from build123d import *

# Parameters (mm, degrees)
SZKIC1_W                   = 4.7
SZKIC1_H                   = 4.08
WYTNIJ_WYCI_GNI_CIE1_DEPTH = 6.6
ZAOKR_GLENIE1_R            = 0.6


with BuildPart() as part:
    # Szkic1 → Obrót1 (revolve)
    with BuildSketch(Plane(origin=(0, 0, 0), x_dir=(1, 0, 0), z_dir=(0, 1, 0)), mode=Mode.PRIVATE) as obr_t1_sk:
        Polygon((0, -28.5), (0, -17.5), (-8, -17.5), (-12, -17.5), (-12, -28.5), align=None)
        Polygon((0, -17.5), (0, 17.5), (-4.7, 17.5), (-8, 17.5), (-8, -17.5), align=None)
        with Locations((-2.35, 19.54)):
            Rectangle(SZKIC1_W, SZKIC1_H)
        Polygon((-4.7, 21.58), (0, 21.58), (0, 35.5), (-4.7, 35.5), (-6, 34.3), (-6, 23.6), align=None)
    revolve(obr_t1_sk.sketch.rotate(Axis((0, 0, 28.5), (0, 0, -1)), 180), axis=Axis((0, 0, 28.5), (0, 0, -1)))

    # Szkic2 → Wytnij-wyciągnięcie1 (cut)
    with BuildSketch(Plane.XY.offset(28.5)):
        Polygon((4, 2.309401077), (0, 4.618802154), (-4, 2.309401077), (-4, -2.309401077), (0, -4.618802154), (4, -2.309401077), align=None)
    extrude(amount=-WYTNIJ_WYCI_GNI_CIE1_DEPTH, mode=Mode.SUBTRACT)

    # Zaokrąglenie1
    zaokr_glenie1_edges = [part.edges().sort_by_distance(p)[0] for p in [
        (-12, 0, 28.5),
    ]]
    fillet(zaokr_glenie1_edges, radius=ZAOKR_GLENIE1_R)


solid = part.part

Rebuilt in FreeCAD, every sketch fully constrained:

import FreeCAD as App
import Part
import Sketcher
from FreeCAD import Vector
Q = App.Units.Quantity


def edges_at(feature, points):
    """Names of the edges that pass closest to the given points."""
    edges = feature.Shape.Edges
    near = lambda p: min(range(len(edges)), key=lambda i: edges[i].distToShape(Part.Vertex(*p))[0])
    return sorted({f"Edge{near(p) + 1}" for p in points})


def add_polygon(sketch, points):
    """Adds a closed chain of lines whose ends are joined by coincident constraints."""
    first, n = sketch.GeometryCount, len(points)
    for a, b in zip(points, points[1:] + points[:1]):
        sketch.addGeometry(Part.LineSegment(App.Vector(*a, 0), App.Vector(*b, 0)), False)
    for i in range(n):
        sketch.addConstraint(Sketcher.Constraint("Coincident", first + i, 2, first + (i + 1) % n, 1))

doc = App.newDocument("Part")
params = doc.addObject("Spreadsheet::Sheet", "Params")
for row, (alias, value) in enumerate([
    ("sketch1_width", "4 mm"),
    ("sketch1_width2", "12 mm"),
    ("sketch1_height", "64 mm"),
    ("sketch1_height2", "35 mm"),
    ("sketch1_height3", "11 mm"),
    ("revolution_angle", "360 deg"),
    ("pocket1_length", "6.6 mm"),
    ("fillet_radius", "0.6 mm"),
], start=1):
    params.set(f"A{row}", alias)
    params.set(f"B{row}", "=" + value)
    params.setAlias(f"B{row}", alias)

body = doc.addObject("PartDesign::Body", "Body")

sketch1 = doc.addObject("Sketcher::SketchObject", "Sketch")
body.addObject(sketch1)
sketch1.AttachmentSupport = (doc.XZ_Plane, [""])
sketch1.MapMode = "FlatFace"
add_polygon(sketch1, [(0, 28.5), (0, -35.5), (-4.7, -35.5), (-6, -34.3), (-6, -23.6), (-4.7, -21.6), (-4.7, -17.5), (-8, -17.5), (-8, 17.5), (-12, 17.5), (-12, 28.5)])
sketch1.addConstraint(Sketcher.Constraint("Vertical", 0))
sketch1.addConstraint(Sketcher.Constraint("Horizontal", 1))
sketch1.addConstraint(Sketcher.Constraint("Vertical", 3))
sketch1.addConstraint(Sketcher.Constraint("Vertical", 5))
sketch1.addConstraint(Sketcher.Constraint("Horizontal", 6))
sketch1.addConstraint(Sketcher.Constraint("Vertical", 7))
sketch1.addConstraint(Sketcher.Constraint("Horizontal", 8))
sketch1.addConstraint(Sketcher.Constraint("Vertical", 9))
sketch1.addConstraint(Sketcher.Constraint("Horizontal", 10))
sketch1.addConstraint(Sketcher.Constraint("PointOnObject", 0, 2, -2))
sketch1.addConstraint(Sketcher.Constraint("Vertical", 1, 2, 4, 2))
sketch1.addConstraint(Sketcher.Constraint("DistanceX", 8, 2, 8, 1, Q("4 mm")))
sketch1.addConstraint(Sketcher.Constraint("DistanceX", 10, 1, 10, 2, Q("12 mm")))
sketch1.addConstraint(Sketcher.Constraint("DistanceY", 0, 2, 0, 1, Q("64 mm")))
sketch1.addConstraint(Sketcher.Constraint("DistanceY", 7, 1, 7, 2, Q("35 mm")))
sketch1.addConstraint(Sketcher.Constraint("DistanceY", 9, 1, 9, 2, Q("11 mm")))
sketch1.addConstraint(Sketcher.Constraint("DistanceX", 1, 2, 1, 1, Q("4.7 mm")))
sketch1.addConstraint(Sketcher.Constraint("DistanceY", 3, 1, 3, 2, Q("10.7 mm")))
sketch1.addConstraint(Sketcher.Constraint("DistanceX", 2, 2, -1, 1, Q("6 mm")))
sketch1.addConstraint(Sketcher.Constraint("DistanceY", 5, 1, 5, 2, Q("4.08 mm")))
sketch1.addConstraint(Sketcher.Constraint("DistanceY", 0, 2, -1, 1, Q("35.5 mm")))
sketch1.addConstraint(Sketcher.Constraint("DistanceY", 2, 2, -1, 1, Q("34.3 mm")))
sketch1.setExpression("Constraints[22]", "Params.sketch1_width")
sketch1.setExpression("Constraints[23]", "Params.sketch1_width2")
sketch1.setExpression("Constraints[24]", "Params.sketch1_height")
sketch1.setExpression("Constraints[25]", "Params.sketch1_height2")
sketch1.setExpression("Constraints[26]", "Params.sketch1_height3")
revolution = doc.addObject("PartDesign::Revolution", "Revolution")
body.addObject(revolution)
revolution.Profile = sketch1
revolution.ReferenceAxis = (sketch1, ["V_Axis"])
revolution.setExpression("Angle", "Params.revolution_angle")

sketch2 = doc.addObject("Sketcher::SketchObject", "Sketch001")
body.addObject(sketch2)
sketch2.AttachmentSupport = (doc.XY_Plane, [""])
sketch2.MapMode = "FlatFace"
sketch2.AttachmentOffset = App.Placement(Vector(0, 0, 28.5), App.Rotation())
add_polygon(sketch2, [(4, 2.3), (0, 4.6), (-4, 2.3), (-4, -2.3), (0, -4.6), (4, -2.3)])
sketch2.addConstraint(Sketcher.Constraint("Vertical", 2))
sketch2.addConstraint(Sketcher.Constraint("Vertical", 5))
sketch2.addConstraint(Sketcher.Constraint("Symmetric", 0, 2, 3, 2, -1, 1))
sketch2.addConstraint(Sketcher.Constraint("Symmetric", 1, 2, 4, 2, -1, 1))
sketch2.addConstraint(Sketcher.Constraint("PointOnObject", 0, 2, -2))
sketch2.addConstraint(Sketcher.Constraint("Parallel", 0, 3))
sketch2.addConstraint(Sketcher.Constraint("Horizontal", 2, 2, 4, 2))
sketch2.addConstraint(Sketcher.Constraint("Angle", 0, Q("150 deg")))
sketch2.addConstraint(Sketcher.Constraint("DistanceX", 1, 2, -1, 1, Q("4 mm")))
sketch2.addConstraint(Sketcher.Constraint("DistanceY", -1, 1, 1, 2, Q("2.309401 mm")))
pocket1 = doc.addObject("PartDesign::Pocket", "Pocket")
body.addObject(pocket1)
pocket1.Profile = sketch2
pocket1.setExpression("Length", "Params.pocket1_length")
doc.recompute()

fillet = doc.addObject("PartDesign::Fillet", "Fillet")
body.addObject(fillet)
fillet.Base = (pocket1, edges_at(pocket1, [(-12, 0, 28.5)]))
fillet.setExpression("Radius", "Params.fillet_radius")

doc.recompute()
